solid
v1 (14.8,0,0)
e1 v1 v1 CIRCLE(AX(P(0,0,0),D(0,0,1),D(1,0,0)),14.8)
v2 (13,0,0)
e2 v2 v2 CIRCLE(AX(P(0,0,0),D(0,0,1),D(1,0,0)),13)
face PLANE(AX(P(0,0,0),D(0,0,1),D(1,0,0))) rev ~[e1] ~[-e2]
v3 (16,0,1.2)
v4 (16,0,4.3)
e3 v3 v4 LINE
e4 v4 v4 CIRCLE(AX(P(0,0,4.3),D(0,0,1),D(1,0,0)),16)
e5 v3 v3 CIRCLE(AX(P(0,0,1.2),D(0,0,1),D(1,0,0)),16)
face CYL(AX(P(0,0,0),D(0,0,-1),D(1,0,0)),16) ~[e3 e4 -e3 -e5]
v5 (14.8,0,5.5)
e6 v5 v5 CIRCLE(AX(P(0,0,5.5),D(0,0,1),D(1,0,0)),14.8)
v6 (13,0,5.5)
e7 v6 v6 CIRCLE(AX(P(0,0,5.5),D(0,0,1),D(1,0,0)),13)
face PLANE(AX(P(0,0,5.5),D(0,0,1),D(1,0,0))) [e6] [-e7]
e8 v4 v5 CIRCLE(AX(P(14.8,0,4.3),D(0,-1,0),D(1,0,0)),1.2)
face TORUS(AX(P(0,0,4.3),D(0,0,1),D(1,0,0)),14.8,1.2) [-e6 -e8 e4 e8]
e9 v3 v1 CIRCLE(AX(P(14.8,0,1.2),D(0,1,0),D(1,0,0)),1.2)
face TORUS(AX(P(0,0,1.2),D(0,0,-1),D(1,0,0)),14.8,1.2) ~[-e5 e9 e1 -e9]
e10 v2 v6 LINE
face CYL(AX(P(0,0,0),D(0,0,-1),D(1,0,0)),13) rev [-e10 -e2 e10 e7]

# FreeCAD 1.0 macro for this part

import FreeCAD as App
import Part
import Sketcher
Q = App.Units.Quantity


def edges_at(feature, points):
    """Names of the edges that pass closest to the given points."""
    edges = feature.Shape.Edges
    near = lambda p: min(range(len(edges)), key=lambda i: edges[i].distToShape(Part.Vertex(*p))[0])
    return sorted({f"Edge{near(p) + 1}" for p in points})

doc = App.newDocument("Part")
body = doc.addObject("PartDesign::Body", "Body")

# Sketch on XY plane
sketch1 = doc.addObject("Sketcher::SketchObject", "Sketch")
body.addObject(sketch1)
sketch1.AttachmentSupport = (doc.XY_Plane, [""])
sketch1.MapMode = "FlatFace"
sketch1.addGeometry([
    Part.Circle(App.Vector(0, 0, 0), App.Vector(0, 0, 1), 16),
    Part.Circle(App.Vector(0, 0, 0), App.Vector(0, 0, 1), 13),
], False)
sketch1.addConstraint([
    Sketcher.Constraint("Coincident", 0, 3, -1, 1),
    Sketcher.Constraint("Coincident", 1, 3, -1, 1),
    Sketcher.Constraint("Diameter", 0, Q("32 mm")),
    Sketcher.Constraint("Diameter", 1, Q("26 mm")),
])
pad1 = doc.addObject("PartDesign::Pad", "Pad")
body.addObject(pad1)
pad1.Profile = sketch1
pad1.Length = 5.5
doc.recompute()

fillet = doc.addObject("PartDesign::Fillet", "Fillet")
body.addObject(fillet)
fillet.Base = (pad1, edges_at(pad1, [(-16, 0, 5.5), (-16, 0, 0)]))
fillet.Radius = 1.2

doc.recompute()
